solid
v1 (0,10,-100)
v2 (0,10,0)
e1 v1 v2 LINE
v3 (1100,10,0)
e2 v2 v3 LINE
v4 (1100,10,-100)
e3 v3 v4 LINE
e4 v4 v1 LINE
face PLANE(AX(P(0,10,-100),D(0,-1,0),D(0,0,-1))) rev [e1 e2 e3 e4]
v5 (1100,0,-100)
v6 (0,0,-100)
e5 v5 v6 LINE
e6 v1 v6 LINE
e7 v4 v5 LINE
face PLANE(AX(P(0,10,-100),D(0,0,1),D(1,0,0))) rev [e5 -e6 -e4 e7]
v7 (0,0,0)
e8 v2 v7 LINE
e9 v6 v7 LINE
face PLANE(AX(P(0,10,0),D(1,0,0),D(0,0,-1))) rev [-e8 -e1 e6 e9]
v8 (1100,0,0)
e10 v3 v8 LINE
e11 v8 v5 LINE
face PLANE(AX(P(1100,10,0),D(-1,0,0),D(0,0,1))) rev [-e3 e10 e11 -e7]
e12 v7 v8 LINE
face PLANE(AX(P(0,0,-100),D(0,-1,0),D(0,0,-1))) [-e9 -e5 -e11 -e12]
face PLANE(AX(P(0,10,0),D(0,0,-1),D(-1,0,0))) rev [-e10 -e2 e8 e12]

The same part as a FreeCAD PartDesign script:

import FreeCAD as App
import Part
import Sketcher

doc = App.newDocument("Part")
params = doc.addObject("Spreadsheet::Sheet", "Params")
for row, (alias, value) in enumerate([
    ("sketch1_width", "1100 mm"),
    ("sketch1_height", "100 mm"),
    ("pad1_length", "10 mm"),
], start=1):
    params.set(f"A{row}", alias)
    params.set(f"B{row}", "=" + value)
    params.setAlias(f"B{row}", alias)

body = doc.addObject("PartDesign::Body", "Body")

# Sketch on XZ plane
sketch1 = doc.addObject("Sketcher::SketchObject", "Sketch")
body.addObject(sketch1)
sketch1.AttachmentSupport = (doc.XZ_Plane, [""])
sketch1.MapMode = "FlatFace"
sketch1.addGeometry([
    Part.LineSegment(App.Vector(0, -100, 0), App.Vector(0, 0, 0)),
    Part.LineSegment(App.Vector(0, 0, 0), App.Vector(1100, 0, 0)),
    Part.LineSegment(App.Vector(1100, 0, 0), App.Vector(1100, -100, 0)),
    Part.LineSegment(App.Vector(1100, -100, 0), App.Vector(0, -100, 0)),
], False)
sketch1.addConstraint([
    Sketcher.Constraint("Coincident", 0, 2, 1, 1),
    Sketcher.Constraint("Coincident", 1, 2, 2, 1),
    Sketcher.Constraint("Coincident", 2, 2, 3, 1),
    Sketcher.Constraint("Coincident", 3, 2, 0, 1),
    Sketcher.Constraint("Vertical", 0),
    Sketcher.Constraint("Horizontal", 1),
    Sketcher.Constraint("Vertical", 2),
    Sketcher.Constraint("Horizontal", 3),
    Sketcher.Constraint("Coincident", 0, 2, -1, 1),
    Sketcher.Constraint("DistanceX", 1, 1, 1, 2, 1100.0),
    Sketcher.Constraint("DistanceY", 0, 1, 0, 2, 100.0),
])
sketch1.setExpression("Constraints[9]", "Params.sketch1_width")
sketch1.setExpression("Constraints[10]", "Params.sketch1_height")
pad1 = doc.addObject("PartDesign::Pad", "Pad")
body.addObject(pad1)
pad1.Profile = sketch1
pad1.setExpression("Length", "Params.pad1_length")
pad1.Reversed = True

doc.recompute()
